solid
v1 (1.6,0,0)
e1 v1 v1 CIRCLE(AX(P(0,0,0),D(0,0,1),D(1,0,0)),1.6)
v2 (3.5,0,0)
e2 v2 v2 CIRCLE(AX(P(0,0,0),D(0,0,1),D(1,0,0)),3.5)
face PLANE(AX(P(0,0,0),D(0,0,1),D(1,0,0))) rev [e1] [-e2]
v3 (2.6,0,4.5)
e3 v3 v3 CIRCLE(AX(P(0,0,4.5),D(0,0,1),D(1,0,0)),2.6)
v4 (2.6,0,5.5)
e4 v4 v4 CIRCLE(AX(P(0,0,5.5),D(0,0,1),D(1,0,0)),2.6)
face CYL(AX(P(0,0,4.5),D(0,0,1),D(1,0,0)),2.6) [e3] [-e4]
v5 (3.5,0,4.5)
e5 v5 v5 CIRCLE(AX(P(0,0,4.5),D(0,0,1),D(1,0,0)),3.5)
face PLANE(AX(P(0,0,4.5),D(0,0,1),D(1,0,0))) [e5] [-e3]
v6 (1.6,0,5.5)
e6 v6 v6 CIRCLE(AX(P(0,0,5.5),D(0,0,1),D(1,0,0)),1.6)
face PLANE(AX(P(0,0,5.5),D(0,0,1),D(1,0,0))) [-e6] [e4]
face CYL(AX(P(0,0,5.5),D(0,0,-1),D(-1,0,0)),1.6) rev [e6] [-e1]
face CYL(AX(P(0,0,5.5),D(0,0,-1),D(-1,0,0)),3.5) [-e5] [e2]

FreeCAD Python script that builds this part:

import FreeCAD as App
import Part
import Sketcher
Q = App.Units.Quantity


def add_polygon(sketch, points):
    """Adds a closed chain of lines whose ends are joined by coincident constraints."""
    first, n = sketch.GeometryCount, len(points)
    for a, b in zip(points, points[1:] + points[:1]):
        sketch.addGeometry(Part.LineSegment(App.Vector(*a, 0), App.Vector(*b, 0)), False)
    for i in range(n):
        sketch.addConstraint(Sketcher.Constraint("Coincident", first + i, 2, first + (i + 1) % n, 1))

doc = App.newDocument("Part")
body = doc.addObject("PartDesign::Body", "Body")

sketch1 = doc.addObject("Sketcher::SketchObject", "Sketch")
body.addObject(sketch1)
sketch1.AttachmentSupport = (doc.XY_Plane, [""])
sketch1.MapMode = "FlatFace"
sketch1.addGeometry([
    Part.Circle(App.Vector(0, 0, 0), App.Vector(0, 0, 1), 3.5),
    Part.Circle(App.Vector(0, 0, 0), App.Vector(0, 0, 1), 1.6),
], False)
sketch1.addConstraint([
    Sketcher.Constraint("Coincident", 0, 3, -1, 1),
    Sketcher.Constraint("Coincident", 1, 3, -1, 1),
    Sketcher.Constraint("Diameter", 0, Q("7 mm")),
    Sketcher.Constraint("Diameter", 1, Q("3.2 mm")),
])
pad1 = doc.addObject("PartDesign::Pad", "Pad")
body.addObject(pad1)
pad1.Profile = sketch1
pad1.Length = 5.5

sketch2 = doc.addObject("Sketcher::SketchObject", "Sketch001")
body.addObject(sketch2)
sketch2.AttachmentSupport = (doc.XY_Plane, [""])
sketch2.MapMode = "FlatFace"
sketch2.AttachmentOffset = App.Placement(App.Vector(0, 0, 5.5), App.Rotation())
add_polygon(sketch2, [(-5.632, 5.632), (-5.632, -5.632), (5.632, -5.632), (5.632, 5.632)])
sketch2.addGeometry(Part.Circle(App.Vector(0, 0, 0), App.Vector(0, 0, 1), 2.6), False)
sketch2.addConstraint([
    Sketcher.Constraint("Vertical", 0),
    Sketcher.Constraint("Horizontal", 1),
    Sketcher.Constraint("Vertical", 2),
    Sketcher.Constraint("Horizontal", 3),
    Sketcher.Constraint("Coincident", 4, 3, -1, 1),
    Sketcher.Constraint("Symmetric", 0, 2, 2, 2, -1, 1),
    Sketcher.Constraint("Equal", 3, 0),
    Sketcher.Constraint("Diameter", 4, Q("5.2 mm")),
    Sketcher.Constraint("DistanceX", 1, 1, 1, 2, Q("11.264 mm")),
])
pocket1 = doc.addObject("PartDesign::Pocket", "Pocket")
body.addObject(pocket1)
pocket1.Profile = sketch2
pocket1.Length = 1

doc.recompute()
